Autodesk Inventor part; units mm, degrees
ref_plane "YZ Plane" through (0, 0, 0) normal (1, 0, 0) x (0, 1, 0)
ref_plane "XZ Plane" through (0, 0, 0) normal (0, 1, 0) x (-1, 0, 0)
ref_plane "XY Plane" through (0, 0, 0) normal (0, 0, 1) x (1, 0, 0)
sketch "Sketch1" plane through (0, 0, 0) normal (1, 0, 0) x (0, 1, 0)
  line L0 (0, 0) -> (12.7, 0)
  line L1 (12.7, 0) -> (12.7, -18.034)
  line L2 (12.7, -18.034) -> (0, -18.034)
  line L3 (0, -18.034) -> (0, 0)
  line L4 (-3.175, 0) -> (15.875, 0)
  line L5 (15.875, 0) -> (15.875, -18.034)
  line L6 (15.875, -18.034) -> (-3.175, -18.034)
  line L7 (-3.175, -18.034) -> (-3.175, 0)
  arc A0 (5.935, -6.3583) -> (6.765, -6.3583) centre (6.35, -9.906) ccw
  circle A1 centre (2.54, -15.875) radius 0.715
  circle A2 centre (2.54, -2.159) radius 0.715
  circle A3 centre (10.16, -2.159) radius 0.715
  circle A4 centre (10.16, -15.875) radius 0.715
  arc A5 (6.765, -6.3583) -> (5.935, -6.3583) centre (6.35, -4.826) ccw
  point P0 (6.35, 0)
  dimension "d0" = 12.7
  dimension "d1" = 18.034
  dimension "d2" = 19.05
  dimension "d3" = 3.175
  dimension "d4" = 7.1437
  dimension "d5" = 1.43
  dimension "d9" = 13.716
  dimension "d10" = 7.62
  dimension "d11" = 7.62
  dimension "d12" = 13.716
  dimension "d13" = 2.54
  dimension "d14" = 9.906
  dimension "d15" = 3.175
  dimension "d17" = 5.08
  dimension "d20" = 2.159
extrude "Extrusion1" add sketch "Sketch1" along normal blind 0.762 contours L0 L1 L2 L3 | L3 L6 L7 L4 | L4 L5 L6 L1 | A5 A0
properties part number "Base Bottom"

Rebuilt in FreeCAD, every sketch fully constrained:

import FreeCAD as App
import Part
import Sketcher

V = App.Vector
Q = App.Units.Quantity


def add_polygon(sketch, points):
    """Adds a closed chain of lines whose ends are joined by coincident constraints."""
    first, n = sketch.GeometryCount, len(points)
    for a, b in zip(points, points[1:] + points[:1]):
        sketch.addGeometry(Part.LineSegment(App.Vector(*a, 0), App.Vector(*b, 0)), False)
    for i in range(n):
        sketch.addConstraint(Sketcher.Constraint("Coincident", first + i, 2, first + (i + 1) % n, 1))

doc = App.newDocument("Part")
body = doc.addObject("PartDesign::Body", "Body")

# Sketch on YZ plane
sketch1 = body.newObject("Sketcher::SketchObject", "Sketch")
sketch1.AttachmentSupport = (doc.getObject("YZ_Plane"), [""])
sketch1.MapMode = "FlatFace"
add_polygon(sketch1, [(-3.2, 0), (-3.2, -18), (15.9, -18), (15.9, 0)])  # lines 0-3
sketch1.addGeometry(Part.Circle(V(2.5, -15.9, 0), V(0, 0, 1), 0.7), False)  # 4
sketch1.addGeometry(Part.Circle(V(10.2, -15.9, 0), V(0, 0, 1), 0.7), False)  # 5
sketch1.addGeometry(Part.Circle(V(2.5, -2.2, 0), V(0, 0, 1), 0.7), False)  # 6
sketch1.addGeometry(Part.Circle(V(10.2, -2.2, 0), V(0, 0, 1), 0.7), False)  # 7
sketch1.addConstraint([
    Sketcher.Constraint("Vertical", 0),
    Sketcher.Constraint("Horizontal", 1),
    Sketcher.Constraint("Vertical", 2),
    Sketcher.Constraint("Horizontal", 3),
    Sketcher.Constraint("Equal", 4, 5),
    Sketcher.Constraint("Equal", 5, 6),
    Sketcher.Constraint("Equal", 6, 7),
    Sketcher.Constraint("PointOnObject", 2, 2, -1),
    Sketcher.Constraint("Horizontal", 4, 3, 5, 3),
    Sketcher.Constraint("Horizontal", 6, 3, 7, 3),
    Sketcher.Constraint("Vertical", 4, 3, 6, 3),
    Sketcher.Constraint("Vertical", 5, 3, 7, 3),
    Sketcher.Constraint("Diameter", 4, Q("0.0563 in")),
    Sketcher.Constraint("DistanceX", 1, 1, 1, 2, Q("0.75 in")),
    Sketcher.Constraint("DistanceY", 0, 2, 0, 1, Q("0.71 in")),
    Sketcher.Constraint("DistanceX", -1, 1, 4, 3, Q("0.1 in")),
    Sketcher.Constraint("DistanceX", 4, 3, 5, 3, Q("0.3 in")),
    Sketcher.Constraint("DistanceY", 4, 3, 6, 3, Q("0.54 in")),
    Sketcher.Constraint("DistanceY", 6, 3, -1, 1, Q("0.085 in")),
    Sketcher.Constraint("DistanceX", 0, 2, -1, 1, Q("0.125 in")),
])
pad1 = body.newObject("PartDesign::Pad", "Pad")
pad1.Profile = sketch1
pad1.Length = Q("0.03 in")

doc.recompute()
